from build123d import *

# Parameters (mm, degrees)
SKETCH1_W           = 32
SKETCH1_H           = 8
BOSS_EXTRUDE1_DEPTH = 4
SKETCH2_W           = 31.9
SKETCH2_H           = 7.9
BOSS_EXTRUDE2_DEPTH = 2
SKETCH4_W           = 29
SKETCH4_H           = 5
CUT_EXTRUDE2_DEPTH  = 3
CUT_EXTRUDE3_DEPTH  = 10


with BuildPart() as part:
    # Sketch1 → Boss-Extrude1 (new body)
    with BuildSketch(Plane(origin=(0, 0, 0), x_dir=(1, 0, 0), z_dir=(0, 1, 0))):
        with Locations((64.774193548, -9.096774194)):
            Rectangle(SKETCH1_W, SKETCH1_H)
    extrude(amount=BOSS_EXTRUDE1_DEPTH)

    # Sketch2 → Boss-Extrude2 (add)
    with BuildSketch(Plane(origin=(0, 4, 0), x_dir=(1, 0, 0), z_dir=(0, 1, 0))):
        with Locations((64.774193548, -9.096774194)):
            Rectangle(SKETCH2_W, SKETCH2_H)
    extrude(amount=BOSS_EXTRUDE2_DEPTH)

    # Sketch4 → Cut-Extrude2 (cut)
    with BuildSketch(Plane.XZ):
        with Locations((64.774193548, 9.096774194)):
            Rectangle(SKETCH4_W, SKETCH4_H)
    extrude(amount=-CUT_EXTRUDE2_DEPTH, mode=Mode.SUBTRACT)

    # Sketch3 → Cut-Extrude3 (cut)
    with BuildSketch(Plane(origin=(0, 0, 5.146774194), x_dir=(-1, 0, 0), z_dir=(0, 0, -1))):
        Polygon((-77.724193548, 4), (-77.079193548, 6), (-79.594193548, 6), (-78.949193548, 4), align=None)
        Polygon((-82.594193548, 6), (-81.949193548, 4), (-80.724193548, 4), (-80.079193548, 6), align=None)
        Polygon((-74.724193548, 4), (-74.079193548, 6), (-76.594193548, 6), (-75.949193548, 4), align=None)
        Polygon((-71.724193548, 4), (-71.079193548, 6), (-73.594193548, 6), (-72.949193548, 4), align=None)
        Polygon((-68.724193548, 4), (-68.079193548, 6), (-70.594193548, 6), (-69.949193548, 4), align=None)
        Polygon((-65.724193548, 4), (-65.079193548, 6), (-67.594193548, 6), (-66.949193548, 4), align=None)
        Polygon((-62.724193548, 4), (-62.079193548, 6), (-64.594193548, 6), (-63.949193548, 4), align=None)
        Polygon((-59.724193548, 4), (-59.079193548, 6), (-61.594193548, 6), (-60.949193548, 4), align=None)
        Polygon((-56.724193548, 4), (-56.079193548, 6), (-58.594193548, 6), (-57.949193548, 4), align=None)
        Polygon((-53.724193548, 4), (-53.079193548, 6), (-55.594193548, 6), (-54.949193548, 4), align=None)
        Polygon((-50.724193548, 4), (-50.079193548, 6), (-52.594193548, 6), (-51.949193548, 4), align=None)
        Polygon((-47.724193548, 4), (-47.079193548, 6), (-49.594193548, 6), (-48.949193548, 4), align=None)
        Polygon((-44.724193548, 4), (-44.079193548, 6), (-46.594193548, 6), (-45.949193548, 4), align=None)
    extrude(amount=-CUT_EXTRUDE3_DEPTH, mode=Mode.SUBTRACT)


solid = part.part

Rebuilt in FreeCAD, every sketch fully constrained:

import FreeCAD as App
import Part
import Sketcher
from FreeCAD import Vector
Q = App.Units.Quantity

doc = App.newDocument("Part")
body = doc.addObject("PartDesign::Body", "Body")

sketch1 = body.newObject("Sketcher::SketchObject", "Sketch")
sketch1.AttachmentSupport = (doc.getObject("XZ_Plane"), [""])
sketch1.MapMode = "FlatFace"
sketch1.addGeometry([
    Part.LineSegment(Vector(49, 5, 0), Vector(49, 13, 0)),
    Part.LineSegment(Vector(49, 13, 0), Vector(81, 13, 0)),
    Part.LineSegment(Vector(81, 13, 0), Vector(81, 5, 0)),
    Part.LineSegment(Vector(81, 5, 0), Vector(49, 5, 0)),
], False)
sketch1.addConstraint([
    Sketcher.Constraint("Coincident", 0, 2, 1, 1),
    Sketcher.Constraint("Coincident", 1, 2, 2, 1),
    Sketcher.Constraint("Coincident", 2, 2, 3, 1),
    Sketcher.Constraint("Coincident", 3, 2, 0, 1),
    Sketcher.Constraint("Vertical", 0),
    Sketcher.Constraint("Horizontal", 1),
    Sketcher.Constraint("Vertical", 2),
    Sketcher.Constraint("Horizontal", 3),
    Sketcher.Constraint("DistanceX", 1, 1, 1, 2, Q("32 mm")),
    Sketcher.Constraint("DistanceY", 0, 1, 0, 2, Q("8 mm")),
    Sketcher.Constraint("DistanceX", -1, 1, 0, 2, Q("48.774194 mm")),
    Sketcher.Constraint("DistanceY", -1, 1, 0, 2, Q("13.096774 mm")),
])
pad1 = body.newObject("PartDesign::Pad", "Pad")
pad1.Profile = sketch1
pad1.Length = 4
pad1.Reversed = True

sketch2 = body.newObject("Sketcher::SketchObject", "Sketch001")
sketch2.AttachmentSupport = (doc.getObject("XZ_Plane"), [""])
sketch2.MapMode = "FlatFace"
sketch2.AttachmentOffset = App.Placement(Vector(0, 0, -4), App.Rotation())
sketch2.addGeometry([
    Part.LineSegment(Vector(49, 5, 0), Vector(49, 13, 0)),
    Part.LineSegment(Vector(49, 13, 0), Vector(81, 13, 0)),
    Part.LineSegment(Vector(81, 13, 0), Vector(81, 5, 0)),
    Part.LineSegment(Vector(81, 5, 0), Vector(49, 5, 0)),
], False)
sketch2.addConstraint([
    Sketcher.Constraint("Coincident", 0, 2, 1, 1),
    Sketcher.Constraint("Coincident", 1, 2, 2, 1),
    Sketcher.Constraint("Coincident", 2, 2, 3, 1),
    Sketcher.Constraint("Coincident", 3, 2, 0, 1),
    Sketcher.Constraint("Vertical", 0),
    Sketcher.Constraint("Horizontal", 1),
    Sketcher.Constraint("Vertical", 2),
    Sketcher.Constraint("Horizontal", 3),
    Sketcher.Constraint("DistanceX", 1, 1, 1, 2, Q("31.9 mm")),
    Sketcher.Constraint("DistanceY", 0, 1, 0, 2, Q("7.9 mm")),
    Sketcher.Constraint("DistanceX", -1, 1, 0, 2, Q("48.824194 mm")),
    Sketcher.Constraint("DistanceY", -1, 1, 0, 2, Q("13.046774 mm")),
])
pad2 = body.newObject("PartDesign::Pad", "Pad001")
pad2.Profile = sketch2
pad2.Length = 2
pad2.Reversed = True

sketch3 = body.newObject("Sketcher::SketchObject", "Sketch002")
sketch3.AttachmentSupport = (doc.getObject("XZ_Plane"), [""])
sketch3.MapMode = "FlatFace"
sketch3.addGeometry([
    Part.LineSegment(Vector(50, 12, 0), Vector(50, 7, 0)),
    Part.LineSegment(Vector(50, 7, 0), Vector(79, 7, 0)),
    Part.LineSegment(Vector(79, 7, 0), Vector(79, 12, 0)),
    Part.LineSegment(Vector(79, 12, 0), Vector(50, 12, 0)),
], False)
sketch3.addConstraint([
    Sketcher.Constraint("Coincident", 0, 2, 1, 1),
    Sketcher.Constraint("Coincident", 1, 2, 2, 1),
    Sketcher.Constraint("Coincident", 2, 2, 3, 1),
    Sketcher.Constraint("Coincident", 3, 2, 0, 1),
    Sketcher.Constraint("Vertical", 0),
    Sketcher.Constraint("Horizontal", 1),
    Sketcher.Constraint("Vertical", 2),
    Sketcher.Constraint("Horizontal", 3),
    Sketcher.Constraint("DistanceX", 1, 1, 1, 2, Q("29 mm")),
    Sketcher.Constraint("DistanceY", 0, 2, 0, 1, Q("5 mm")),
    Sketcher.Constraint("DistanceX", -1, 1, 0, 2, Q("50.274194 mm")),
    Sketcher.Constraint("DistanceY", -1, 1, 0, 2, Q("6.596774 mm")),
])
pocket1 = body.newObject("PartDesign::Pocket", "Pocket")
pocket1.Profile = sketch3
pocket1.Length = 3

sketch4 = body.newObject("Sketcher::SketchObject", "Sketch003")
sketch4.AttachmentSupport = (doc.getObject("XY_Plane"), [""])
sketch4.MapMode = "FlatFace"
sketch4.AttachmentOffset = App.Placement(Vector(0, 0, 5.146774), App.Rotation())
sketch4.addGeometry([
    Part.LineSegment(Vector(77.7, 4, 0), Vector(77.1, 6, 0)),
    Part.LineSegment(Vector(77.1, 6, 0), Vector(79.6, 6, 0)),
    Part.LineSegment(Vector(79.6, 6, 0), Vector(78.9, 4, 0)),
    Part.LineSegment(Vector(78.9, 4, 0), Vector(77.7, 4, 0)),
    Part.LineSegment(Vector(82.6, 6, 0), Vector(81.9, 4, 0)),
    Part.LineSegment(Vector(81.9, 4, 0), Vector(80.7, 4, 0)),
    Part.LineSegment(Vector(80.7, 4, 0), Vector(80.1, 6, 0)),
    Part.LineSegment(Vector(80.1, 6, 0), Vector(82.6, 6, 0)),
    Part.LineSegment(Vector(74.7, 4, 0), Vector(74.1, 6, 0)),
    Part.LineSegment(Vector(74.1, 6, 0), Vector(76.6, 6, 0)),
    Part.LineSegment(Vector(76.6, 6, 0), Vector(75.9, 4, 0)),
    Part.LineSegment(Vector(75.9, 4, 0), Vector(74.7, 4, 0)),
    Part.LineSegment(Vector(71.7, 4, 0), Vector(71.1, 6, 0)),
    Part.LineSegment(Vector(71.1, 6, 0), Vector(73.6, 6, 0)),
    Part.LineSegment(Vector(73.6, 6, 0), Vector(72.9, 4, 0)),
    Part.LineSegment(Vector(72.9, 4, 0), Vector(71.7, 4, 0)),
    Part.LineSegment(Vector(68.7, 4, 0), Vector(68.1, 6, 0)),
    Part.LineSegment(Vector(68.1, 6, 0), Vector(70.6, 6, 0)),
    Part.LineSegment(Vector(70.6, 6, 0), Vector(69.9, 4, 0)),
    Part.LineSegment(Vector(69.9, 4, 0), Vector(68.7, 4, 0)),
    Part.LineSegment(Vector(65.7, 4, 0), Vector(65.1, 6, 0)),
    Part.LineSegment(Vector(65.1, 6, 0), Vector(67.6, 6, 0)),
    Part.LineSegment(Vector(67.6, 6, 0), Vector(66.9, 4, 0)),
    Part.LineSegment(Vector(66.9, 4, 0), Vector(65.7, 4, 0)),
    Part.LineSegment(Vector(62.7, 4, 0), Vector(62.1, 6, 0)),
    Part.LineSegment(Vector(62.1, 6, 0), Vector(64.6, 6, 0)),
    Part.LineSegment(Vector(64.6, 6, 0), Vector(63.9, 4, 0)),
    Part.LineSegment(Vector(63.9, 4, 0), Vector(62.7, 4, 0)),
    Part.LineSegment(Vector(59.7, 4, 0), Vector(59.1, 6, 0)),
    Part.LineSegment(Vector(59.1, 6, 0), Vector(61.6, 6, 0)),
    Part.LineSegment(Vector(61.6, 6, 0), Vector(60.9, 4, 0)),
    Part.LineSegment(Vector(60.9, 4, 0), Vector(59.7, 4, 0)),
    Part.LineSegment(Vector(56.7, 4, 0), Vector(56.1, 6, 0)),
    Part.LineSegment(Vector(56.1, 6, 0), Vector(58.6, 6, 0)),
    Part.LineSegment(Vector(58.6, 6, 0), Vector(57.9, 4, 0)),
    Part.LineSegment(Vector(57.9, 4, 0), Vector(56.7, 4, 0)),
    Part.LineSegment(Vector(53.7, 4, 0), Vector(53.1, 6, 0)),
    Part.LineSegment(Vector(53.1, 6, 0), Vector(55.6, 6, 0)),
    Part.LineSegment(Vector(55.6, 6, 0), Vector(54.9, 4, 0)),
    Part.LineSegment(Vector(54.9, 4, 0), Vector(53.7, 4, 0)),
    Part.LineSegment(Vector(50.7, 4, 0), Vector(50.1, 6, 0)),
    Part.LineSegment(Vector(50.1, 6, 0), Vector(52.6, 6, 0)),
    Part.LineSegment(Vector(52.6, 6, 0), Vector(51.9, 4, 0)),
    Part.LineSegment(Vector(51.9, 4, 0), Vector(50.7, 4, 0)),
    Part.LineSegment(Vector(47.7, 4, 0), Vector(47.1, 6, 0)),
    Part.LineSegment(Vector(47.1, 6, 0), Vector(49.6, 6, 0)),
    Part.LineSegment(Vector(49.6, 6, 0), Vector(48.9, 4, 0)),
    Part.LineSegment(Vector(48.9, 4, 0), Vector(47.7, 4, 0)),
    Part.LineSegment(Vector(44.7, 4, 0), Vector(44.1, 6, 0)),
    Part.LineSegment(Vector(44.1, 6, 0), Vector(46.6, 6, 0)),
    Part.LineSegment(Vector(46.6, 6, 0), Vector(45.9, 4, 0)),
    Part.LineSegment(Vector(45.9, 4, 0), Vector(44.7, 4, 0)),
], False)
sketch4.addConstraint([
    Sketcher.Constraint("Coincident", 0, 2, 1, 1),
    Sketcher.Constraint("Coincident", 1, 2, 2, 1),
    Sketcher.Constraint("Coincident", 2, 2, 3, 1),
    Sketcher.Constraint("Coincident", 3, 2, 0, 1),
    Sketcher.Constraint("Coincident", 4, 2, 5, 1),
    Sketcher.Constraint("Coincident", 5, 2, 6, 1),
    Sketcher.Constraint("Coincident", 6, 2, 7, 1),
    Sketcher.Constraint("Coincident", 7, 2, 4, 1),
    Sketcher.Constraint("Coincident", 8, 2, 9, 1),
    Sketcher.Constraint("Coincident", 9, 2, 10, 1),
    Sketcher.Constraint("Coincident", 10, 2, 11, 1),
    Sketcher.Constraint("Coincident", 11, 2, 8, 1),
    Sketcher.Constraint("Coincident", 12, 2, 13, 1),
    Sketcher.Constraint("Coincident", 13, 2, 14, 1),
    Sketcher.Constraint("Coincident", 14, 2, 15, 1),
    Sketcher.Constraint("Coincident", 15, 2, 12, 1),
    Sketcher.Constraint("Coincident", 16, 2, 17, 1),
    Sketcher.Constraint("Coincident", 17, 2, 18, 1),
    Sketcher.Constraint("Coincident", 18, 2, 19, 1),
    Sketcher.Constraint("Coincident", 19, 2, 16, 1),
    Sketcher.Constraint("Coincident", 20, 2, 21, 1),
    Sketcher.Constraint("Coincident", 21, 2, 22, 1),
    Sketcher.Constraint("Coincident", 22, 2, 23, 1),
    Sketcher.Constraint("Coincident", 23, 2, 20, 1),
    Sketcher.Constraint("Coincident", 24, 2, 25, 1),
    Sketcher.Constraint("Coincident", 25, 2, 26, 1),
    Sketcher.Constraint("Coincident", 26, 2, 27, 1),
    Sketcher.Constraint("Coincident", 27, 2, 24, 1),
    Sketcher.Constraint("Coincident", 28, 2, 29, 1),
    Sketcher.Constraint("Coincident", 29, 2, 30, 1),
    Sketcher.Constraint("Coincident", 30, 2, 31, 1),
    Sketcher.Constraint("Coincident", 31, 2, 28, 1),
    Sketcher.Constraint("Coincident", 32, 2, 33, 1),
    Sketcher.Constraint("Coincident", 33, 2, 34, 1),
    Sketcher.Constraint("Coincident", 34, 2, 35, 1),
    Sketcher.Constraint("Coincident", 35, 2, 32, 1),
    Sketcher.Constraint("Coincident", 36, 2, 37, 1),
    Sketcher.Constraint("Coincident", 37, 2, 38, 1),
    Sketcher.Constraint("Coincident", 38, 2, 39, 1),
    Sketcher.Constraint("Coincident", 39, 2, 36, 1),
    Sketcher.Constraint("Coincident", 40, 2, 41, 1),
    Sketcher.Constraint("Coincident", 41, 2, 42, 1),
    Sketcher.Constraint("Coincident", 42, 2, 43, 1),
    Sketcher.Constraint("Coincident", 43, 2, 40, 1),
    Sketcher.Constraint("Coincident", 44, 2, 45, 1),
    Sketcher.Constraint("Coincident", 45, 2, 46, 1),
    Sketcher.Constraint("Coincident", 46, 2, 47, 1),
    Sketcher.Constraint("Coincident", 47, 2, 44, 1),
    Sketcher.Constraint("Coincident", 48, 2, 49, 1),
    Sketcher.Constraint("Coincident", 49, 2, 50, 1),
    Sketcher.Constraint("Coincident", 50, 2, 51, 1),
    Sketcher.Constraint("Coincident", 51, 2, 48, 1),
    Sketcher.Constraint("Horizontal", 1),
    Sketcher.Constraint("Horizontal", 3),
    Sketcher.Constraint("Horizontal", 5),
    Sketcher.Constraint("Horizontal", 7),
    Sketcher.Constraint("Horizontal", 9),
    Sketcher.Constraint("Horizontal", 11),
    Sketcher.Constraint("Horizontal", 13),
    Sketcher.Constraint("Horizontal", 15),
    Sketcher.Constraint("Horizontal", 17),
    Sketcher.Constraint("Horizontal", 19),
    Sketcher.Constraint("Horizontal", 21),
    Sketcher.Constraint("Horizontal", 23),
    Sketcher.Constraint("Horizontal", 25),
    Sketcher.Constraint("Horizontal", 27),
    Sketcher.Constraint("Horizontal", 29),
    Sketcher.Constraint("Horizontal", 31),
    Sketcher.Constraint("Horizontal", 33),
    Sketcher.Constraint("Horizontal", 35),
    Sketcher.Constraint("Horizontal", 37),
    Sketcher.Constraint("Horizontal", 39),
    Sketcher.Constraint("Horizontal", 41),
    Sketcher.Constraint("Horizontal", 43),
    Sketcher.Constraint("Horizontal", 45),
    Sketcher.Constraint("Horizontal", 47),
    Sketcher.Constraint("Horizontal", 49),
    Sketcher.Constraint("Horizontal", 51),
    Sketcher.Constraint("Parallel", 2, 4),
    Sketcher.Constraint("Parallel", 0, 6),
    Sketcher.Constraint("Parallel", 6, 8),
    Sketcher.Constraint("Parallel", 4, 10),
    Sketcher.Constraint("Parallel", 8, 12),
    Sketcher.Constraint("Parallel", 10, 14),
    Sketcher.Constraint("Parallel", 12, 16),
    Sketcher.Constraint("Parallel", 14, 18),
    Sketcher.Constraint("Parallel", 16, 20),
    Sketcher.Constraint("Parallel", 18, 22),
    Sketcher.Constraint("Parallel", 20, 24),
    Sketcher.Constraint("Parallel", 22, 26),
    Sketcher.Constraint("Parallel", 24, 28),
    Sketcher.Constraint("Parallel", 26, 30),
    Sketcher.Constraint("Parallel", 28, 32),
    Sketcher.Constraint("Parallel", 30, 34),
    Sketcher.Constraint("Parallel", 32, 36),
    Sketcher.Constraint("Parallel", 34, 38),
    Sketcher.Constraint("Parallel", 36, 40),
    Sketcher.Constraint("Parallel", 38, 42),
    Sketcher.Constraint("Parallel", 40, 44),
    Sketcher.Constraint("Parallel", 42, 46),
    Sketcher.Constraint("Parallel", 44, 48),
    Sketcher.Constraint("Parallel", 46, 50),
    Sketcher.Constraint("Horizontal", 3, 2, 4, 2),
    Sketcher.Constraint("Horizontal", 1, 2, 6, 2),
    Sketcher.Constraint("Horizontal", 7, 2, 8, 2),
    Sketcher.Constraint("Horizontal", 5, 2, 10, 2),
    Sketcher.Constraint("Horizontal", 9, 2, 12, 2),
    Sketcher.Constraint("Horizontal", 11, 2, 14, 2),
    Sketcher.Constraint("Horizontal", 13, 2, 16, 2),
    Sketcher.Constraint("Horizontal", 15, 2, 18, 2),
    Sketcher.Constraint("Horizontal", 17, 2, 20, 2),
    Sketcher.Constraint("Horizontal", 19, 2, 22, 2),
    Sketcher.Constraint("Horizontal", 21, 2, 24, 2),
    Sketcher.Constraint("Horizontal", 23, 2, 26, 2),
    Sketcher.Constraint("Horizontal", 25, 2, 28, 2),
    Sketcher.Constraint("Horizontal", 27, 2, 30, 2),
    Sketcher.Constraint("Horizontal", 29, 2, 32, 2),
    Sketcher.Constraint("Horizontal", 31, 2, 34, 2),
    Sketcher.Constraint("Horizontal", 33, 2, 36, 2),
    Sketcher.Constraint("Horizontal", 35, 2, 38, 2),
    Sketcher.Constraint("Horizontal", 37, 2, 40, 2),
    Sketcher.Constraint("Horizontal", 39, 2, 42, 2),
    Sketcher.Constraint("Horizontal", 41, 2, 44, 2),
    Sketcher.Constraint("Horizontal", 43, 2, 46, 2),
    Sketcher.Constraint("Horizontal", 45, 2, 48, 2),
    Sketcher.Constraint("Horizontal", 47, 2, 50, 2),
    Sketcher.Constraint("Equal", 3, 5),
    Sketcher.Constraint("Equal", 7, 9),
    Sketcher.Constraint("Equal", 9, 13),
    Sketcher.Constraint("Equal", 13, 17),
    Sketcher.Constraint("Equal", 17, 21),
    Sketcher.Constraint("Equal", 21, 25),
    Sketcher.Constraint("Equal", 25, 29),
    Sketcher.Constraint("Equal", 29, 33),
    Sketcher.Constraint("Equal", 33, 37),
    Sketcher.Constraint("Equal", 37, 41),
    Sketcher.Constraint("Equal", 41, 45),
    Sketcher.Constraint("Equal", 45, 49),
    Sketcher.Constraint("Equal", 0, 2),
    Sketcher.Constraint("DistanceY", -1, 1, 0, 2, Q("6 mm")),
    Sketcher.Constraint("DistanceY", -1, 1, 2, 2, Q("4 mm")),
    Sketcher.Constraint("DistanceX", 2, 2, 4, 2, Q("3 mm")),
    Sketcher.Constraint("DistanceX", 8, 2, 0, 2, Q("3 mm")),
    Sketcher.Constraint("DistanceX", 12, 2, 8, 2, Q("3 mm")),
    Sketcher.Constraint("DistanceX", 16, 2, 12, 2, Q("3 mm")),
    Sketcher.Constraint("DistanceX", 20, 2, 16, 2, Q("3 mm")),
    Sketcher.Constraint("DistanceX", 24, 2, 20, 2, Q("3 mm")),
    Sketcher.Constraint("DistanceX", 28, 2, 24, 2, Q("3 mm")),
    Sketcher.Constraint("DistanceX", 32, 2, 28, 2, Q("3 mm")),
    Sketcher.Constraint("DistanceX", 36, 2, 32, 2, Q("3 mm")),
    Sketcher.Constraint("DistanceX", 40, 2, 36, 2, Q("3 mm")),
    Sketcher.Constraint("DistanceX", 44, 2, 40, 2, Q("3 mm")),
    Sketcher.Constraint("DistanceX", 48, 2, 44, 2, Q("3 mm")),
    Sketcher.Constraint("DistanceX", 1, 1, 1, 2, Q("2.515 mm")),
    Sketcher.Constraint("DistanceX", 3, 2, 3, 1, Q("1.225 mm")),
    Sketcher.Constraint("DistanceX", -1, 1, 0, 2, Q("77.079194 mm")),
])
pocket2 = body.newObject("PartDesign::Pocket", "Pocket001")
pocket2.Profile = sketch4
pocket2.Length = 10
pocket2.Reversed = True

doc.recompute()
